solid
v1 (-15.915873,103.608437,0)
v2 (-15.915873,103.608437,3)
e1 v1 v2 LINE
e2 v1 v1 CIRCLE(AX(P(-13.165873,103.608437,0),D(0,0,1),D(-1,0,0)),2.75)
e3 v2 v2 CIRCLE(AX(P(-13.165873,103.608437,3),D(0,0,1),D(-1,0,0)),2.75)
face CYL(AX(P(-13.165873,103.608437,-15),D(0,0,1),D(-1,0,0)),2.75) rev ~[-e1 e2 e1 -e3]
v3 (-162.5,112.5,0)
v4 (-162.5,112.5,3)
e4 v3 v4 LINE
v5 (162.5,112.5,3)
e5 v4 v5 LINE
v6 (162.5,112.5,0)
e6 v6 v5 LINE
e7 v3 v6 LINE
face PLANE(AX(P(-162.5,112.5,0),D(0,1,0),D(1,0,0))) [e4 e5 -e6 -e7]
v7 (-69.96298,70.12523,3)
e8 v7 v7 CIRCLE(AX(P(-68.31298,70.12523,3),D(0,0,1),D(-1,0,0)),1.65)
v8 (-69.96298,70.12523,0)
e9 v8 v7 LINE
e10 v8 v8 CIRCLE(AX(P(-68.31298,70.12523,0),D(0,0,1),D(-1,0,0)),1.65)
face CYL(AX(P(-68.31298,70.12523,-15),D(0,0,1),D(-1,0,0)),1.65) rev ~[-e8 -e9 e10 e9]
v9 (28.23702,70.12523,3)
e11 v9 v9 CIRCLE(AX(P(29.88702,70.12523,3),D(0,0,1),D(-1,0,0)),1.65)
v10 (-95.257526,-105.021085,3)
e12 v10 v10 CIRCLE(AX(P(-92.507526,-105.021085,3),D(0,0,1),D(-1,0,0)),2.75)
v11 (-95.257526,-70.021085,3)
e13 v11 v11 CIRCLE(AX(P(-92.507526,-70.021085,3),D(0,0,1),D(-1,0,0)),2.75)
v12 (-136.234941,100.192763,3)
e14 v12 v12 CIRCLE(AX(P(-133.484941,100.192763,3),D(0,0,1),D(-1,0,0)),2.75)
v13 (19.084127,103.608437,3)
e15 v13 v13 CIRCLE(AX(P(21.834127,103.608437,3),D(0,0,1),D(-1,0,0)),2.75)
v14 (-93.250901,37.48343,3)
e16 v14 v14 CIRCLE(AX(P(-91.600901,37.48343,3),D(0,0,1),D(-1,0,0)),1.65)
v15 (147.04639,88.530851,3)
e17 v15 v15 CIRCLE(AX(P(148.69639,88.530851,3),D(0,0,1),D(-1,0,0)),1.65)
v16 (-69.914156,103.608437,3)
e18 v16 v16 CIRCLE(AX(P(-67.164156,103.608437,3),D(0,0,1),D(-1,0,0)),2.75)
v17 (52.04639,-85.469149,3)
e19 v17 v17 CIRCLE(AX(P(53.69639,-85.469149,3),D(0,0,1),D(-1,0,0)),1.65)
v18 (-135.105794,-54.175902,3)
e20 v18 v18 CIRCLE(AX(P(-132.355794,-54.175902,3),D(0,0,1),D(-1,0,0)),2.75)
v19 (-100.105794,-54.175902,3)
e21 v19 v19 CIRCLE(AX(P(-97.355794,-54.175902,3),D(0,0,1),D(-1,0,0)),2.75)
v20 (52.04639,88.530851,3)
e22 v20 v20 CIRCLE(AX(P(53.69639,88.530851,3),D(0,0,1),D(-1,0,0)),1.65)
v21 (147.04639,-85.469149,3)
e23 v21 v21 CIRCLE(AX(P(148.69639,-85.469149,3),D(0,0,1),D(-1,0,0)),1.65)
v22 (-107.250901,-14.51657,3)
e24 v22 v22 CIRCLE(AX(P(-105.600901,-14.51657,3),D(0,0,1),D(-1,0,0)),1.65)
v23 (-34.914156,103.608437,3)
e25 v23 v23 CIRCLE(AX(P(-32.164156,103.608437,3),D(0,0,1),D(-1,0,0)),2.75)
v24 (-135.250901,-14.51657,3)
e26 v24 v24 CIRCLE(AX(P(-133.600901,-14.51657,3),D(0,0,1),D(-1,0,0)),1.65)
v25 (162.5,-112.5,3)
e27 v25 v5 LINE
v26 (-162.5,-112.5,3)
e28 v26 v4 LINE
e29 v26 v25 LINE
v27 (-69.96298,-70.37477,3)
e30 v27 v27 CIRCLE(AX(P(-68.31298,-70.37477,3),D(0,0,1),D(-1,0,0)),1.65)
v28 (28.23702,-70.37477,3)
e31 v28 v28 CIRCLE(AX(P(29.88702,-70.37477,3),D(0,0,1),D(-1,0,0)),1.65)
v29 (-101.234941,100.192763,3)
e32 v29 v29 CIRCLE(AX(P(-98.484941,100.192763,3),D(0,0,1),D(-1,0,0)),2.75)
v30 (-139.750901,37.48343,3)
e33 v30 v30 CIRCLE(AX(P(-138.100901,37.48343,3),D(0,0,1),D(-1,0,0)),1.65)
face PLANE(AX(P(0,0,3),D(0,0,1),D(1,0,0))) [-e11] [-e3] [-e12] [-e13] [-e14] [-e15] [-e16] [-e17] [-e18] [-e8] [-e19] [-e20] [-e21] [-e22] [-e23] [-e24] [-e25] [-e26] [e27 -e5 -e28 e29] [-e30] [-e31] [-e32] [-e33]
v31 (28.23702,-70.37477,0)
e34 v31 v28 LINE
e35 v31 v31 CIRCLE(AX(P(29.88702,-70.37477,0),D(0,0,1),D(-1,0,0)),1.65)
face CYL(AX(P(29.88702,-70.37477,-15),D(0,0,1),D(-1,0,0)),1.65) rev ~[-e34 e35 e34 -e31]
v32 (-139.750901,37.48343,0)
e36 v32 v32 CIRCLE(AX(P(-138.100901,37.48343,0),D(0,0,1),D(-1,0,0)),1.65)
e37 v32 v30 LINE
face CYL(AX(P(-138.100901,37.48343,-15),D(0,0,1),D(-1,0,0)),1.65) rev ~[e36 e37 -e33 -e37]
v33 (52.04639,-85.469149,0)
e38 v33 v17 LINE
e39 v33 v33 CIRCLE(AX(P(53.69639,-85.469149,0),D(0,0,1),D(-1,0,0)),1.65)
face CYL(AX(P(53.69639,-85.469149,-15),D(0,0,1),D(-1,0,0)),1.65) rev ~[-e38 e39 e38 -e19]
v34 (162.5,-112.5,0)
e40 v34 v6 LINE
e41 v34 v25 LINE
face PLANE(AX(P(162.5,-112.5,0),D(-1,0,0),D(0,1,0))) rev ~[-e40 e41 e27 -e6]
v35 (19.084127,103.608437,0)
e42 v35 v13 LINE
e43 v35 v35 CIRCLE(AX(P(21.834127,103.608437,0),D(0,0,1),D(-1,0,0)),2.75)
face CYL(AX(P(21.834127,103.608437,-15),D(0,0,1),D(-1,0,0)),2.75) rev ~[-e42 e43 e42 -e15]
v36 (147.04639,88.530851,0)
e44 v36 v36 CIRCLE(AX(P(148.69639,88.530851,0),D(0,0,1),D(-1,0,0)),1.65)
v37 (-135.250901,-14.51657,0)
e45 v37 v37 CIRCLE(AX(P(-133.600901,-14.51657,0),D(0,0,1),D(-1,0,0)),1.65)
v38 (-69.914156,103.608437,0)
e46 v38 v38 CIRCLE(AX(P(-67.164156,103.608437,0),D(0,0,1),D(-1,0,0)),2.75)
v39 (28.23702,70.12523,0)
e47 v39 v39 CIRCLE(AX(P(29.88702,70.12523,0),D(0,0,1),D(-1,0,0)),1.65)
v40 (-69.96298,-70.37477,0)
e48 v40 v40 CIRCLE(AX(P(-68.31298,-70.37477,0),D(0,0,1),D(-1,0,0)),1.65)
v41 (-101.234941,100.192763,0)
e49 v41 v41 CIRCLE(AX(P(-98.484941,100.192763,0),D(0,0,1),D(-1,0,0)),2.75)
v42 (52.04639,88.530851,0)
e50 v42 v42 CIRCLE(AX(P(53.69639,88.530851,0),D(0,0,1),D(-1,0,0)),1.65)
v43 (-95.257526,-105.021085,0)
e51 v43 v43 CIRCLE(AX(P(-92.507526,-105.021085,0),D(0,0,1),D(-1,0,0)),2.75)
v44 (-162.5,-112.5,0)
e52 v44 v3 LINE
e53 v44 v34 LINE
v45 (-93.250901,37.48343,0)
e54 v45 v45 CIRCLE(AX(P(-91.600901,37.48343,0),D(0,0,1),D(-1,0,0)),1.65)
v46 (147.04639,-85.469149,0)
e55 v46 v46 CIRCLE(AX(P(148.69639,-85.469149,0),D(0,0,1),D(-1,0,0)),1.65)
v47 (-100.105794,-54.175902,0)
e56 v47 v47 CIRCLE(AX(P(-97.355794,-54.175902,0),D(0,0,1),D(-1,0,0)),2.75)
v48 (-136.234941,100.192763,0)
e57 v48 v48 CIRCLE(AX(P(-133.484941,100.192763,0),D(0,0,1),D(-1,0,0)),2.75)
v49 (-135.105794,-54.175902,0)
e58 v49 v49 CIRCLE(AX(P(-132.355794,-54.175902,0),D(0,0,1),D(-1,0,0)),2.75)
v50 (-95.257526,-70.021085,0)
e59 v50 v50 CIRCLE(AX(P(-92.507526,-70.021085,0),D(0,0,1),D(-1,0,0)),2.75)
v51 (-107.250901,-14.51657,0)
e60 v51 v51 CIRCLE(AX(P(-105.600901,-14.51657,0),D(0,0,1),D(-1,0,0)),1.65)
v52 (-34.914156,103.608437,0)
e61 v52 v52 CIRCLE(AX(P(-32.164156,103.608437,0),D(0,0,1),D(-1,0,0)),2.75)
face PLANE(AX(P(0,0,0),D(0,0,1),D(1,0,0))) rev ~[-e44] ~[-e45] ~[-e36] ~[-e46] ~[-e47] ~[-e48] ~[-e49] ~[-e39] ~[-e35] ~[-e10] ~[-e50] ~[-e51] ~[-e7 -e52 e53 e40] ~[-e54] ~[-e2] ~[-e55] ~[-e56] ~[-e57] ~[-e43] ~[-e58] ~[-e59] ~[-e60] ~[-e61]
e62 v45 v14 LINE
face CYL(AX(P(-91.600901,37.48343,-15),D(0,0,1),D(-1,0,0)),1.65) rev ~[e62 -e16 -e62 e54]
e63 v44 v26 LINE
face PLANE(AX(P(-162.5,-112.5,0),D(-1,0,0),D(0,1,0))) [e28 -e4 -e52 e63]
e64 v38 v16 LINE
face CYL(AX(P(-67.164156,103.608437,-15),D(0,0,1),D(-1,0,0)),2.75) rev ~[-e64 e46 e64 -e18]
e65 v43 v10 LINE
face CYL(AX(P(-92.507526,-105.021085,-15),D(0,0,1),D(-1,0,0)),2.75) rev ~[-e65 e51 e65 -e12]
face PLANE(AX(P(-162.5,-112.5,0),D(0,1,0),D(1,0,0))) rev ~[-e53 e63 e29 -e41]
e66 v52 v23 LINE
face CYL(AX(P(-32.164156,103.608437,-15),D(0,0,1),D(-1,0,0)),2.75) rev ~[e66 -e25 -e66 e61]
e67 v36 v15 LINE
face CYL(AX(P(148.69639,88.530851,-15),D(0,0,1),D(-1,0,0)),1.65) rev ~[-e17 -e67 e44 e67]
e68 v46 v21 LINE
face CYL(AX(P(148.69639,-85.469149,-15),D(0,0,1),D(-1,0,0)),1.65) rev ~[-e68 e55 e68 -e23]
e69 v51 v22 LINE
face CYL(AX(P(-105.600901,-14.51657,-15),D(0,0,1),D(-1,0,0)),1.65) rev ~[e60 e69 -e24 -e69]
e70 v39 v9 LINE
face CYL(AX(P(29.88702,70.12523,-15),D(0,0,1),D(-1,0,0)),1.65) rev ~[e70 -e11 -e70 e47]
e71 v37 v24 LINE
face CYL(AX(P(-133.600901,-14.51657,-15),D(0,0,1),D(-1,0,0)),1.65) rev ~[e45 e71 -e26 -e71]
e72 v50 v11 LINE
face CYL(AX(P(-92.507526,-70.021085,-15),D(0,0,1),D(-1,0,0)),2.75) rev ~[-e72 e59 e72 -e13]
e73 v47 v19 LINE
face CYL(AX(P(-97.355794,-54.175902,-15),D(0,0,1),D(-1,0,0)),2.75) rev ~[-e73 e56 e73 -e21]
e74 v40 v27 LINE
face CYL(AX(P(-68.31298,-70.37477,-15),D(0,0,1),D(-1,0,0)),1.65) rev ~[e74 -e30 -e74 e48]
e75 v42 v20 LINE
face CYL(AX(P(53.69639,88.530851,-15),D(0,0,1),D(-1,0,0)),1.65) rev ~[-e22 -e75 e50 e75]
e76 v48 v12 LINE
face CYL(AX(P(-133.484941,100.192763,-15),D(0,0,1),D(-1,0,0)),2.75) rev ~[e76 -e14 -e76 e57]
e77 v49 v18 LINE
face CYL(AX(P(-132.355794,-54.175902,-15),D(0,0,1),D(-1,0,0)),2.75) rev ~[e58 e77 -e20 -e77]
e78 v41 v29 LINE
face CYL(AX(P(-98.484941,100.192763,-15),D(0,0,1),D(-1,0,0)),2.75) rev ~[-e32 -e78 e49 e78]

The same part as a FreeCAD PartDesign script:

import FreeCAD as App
import Part
import Sketcher

V = App.Vector
Q = App.Units.Quantity


def add_polygon(sketch, points):
    """Adds a closed chain of lines whose ends are joined by coincident constraints."""
    first, n = sketch.GeometryCount, len(points)
    for a, b in zip(points, points[1:] + points[:1]):
        sketch.addGeometry(Part.LineSegment(App.Vector(*a, 0), App.Vector(*b, 0)), False)
    for i in range(n):
        sketch.addConstraint(Sketcher.Constraint("Coincident", first + i, 2, first + (i + 1) % n, 1))

doc = App.newDocument("Part")
body = doc.addObject("PartDesign::Body", "Body")

# Sketch on XY plane
sketch1 = body.newObject("Sketcher::SketchObject", "Sketch")
sketch1.AttachmentSupport = (doc.getObject("XY_Plane"), [""])
sketch1.MapMode = "FlatFace"
add_polygon(sketch1, [(-162.5, 112.5), (-162.5, -112.5), (162.5, -112.5), (162.5, 112.5)])  # lines 0-3
sketch1.addConstraint(Sketcher.Constraint("Vertical", 0))
sketch1.addConstraint(Sketcher.Constraint("Horizontal", 1))
sketch1.addConstraint(Sketcher.Constraint("Vertical", 2))
sketch1.addConstraint(Sketcher.Constraint("Horizontal", 3))
sketch1.addConstraint(Sketcher.Constraint("Symmetric", 0, 2, 2, 2, -1, 1))
sketch1.addConstraint(Sketcher.Constraint("DistanceX", 1, 1, 1, 2, Q("325 mm")))
sketch1.addConstraint(Sketcher.Constraint("DistanceY", 0, 2, 0, 1, Q("225 mm")))
pad1 = body.newObject("PartDesign::Pad", "Pad")
pad1.Profile = sketch1
pad1.Length = 3

# Sketch on XY plane
sketch2 = body.newObject("Sketcher::SketchObject", "Sketch001")
sketch2.AttachmentSupport = (doc.getObject("XY_Plane"), [""])
sketch2.MapMode = "FlatFace"
sketch2.addGeometry(Part.Circle(V(148.69639, 88.530851, 0), V(0, 0, 1), 1.65), False)
sketch2.addGeometry(Part.Circle(V(53.69639, 88.530851, 0), V(0, 0, 1), 1.65), False)
sketch2.addGeometry(Part.Circle(V(148.69639, -85.469149, 0), V(0, 0, 1), 1.65), False)
sketch2.addGeometry(Part.Circle(V(53.69639, -85.469149, 0), V(0, 0, 1), 1.65), False)
sketch2.addGeometry(Part.Circle(V(-68.31298, 70.12523, 0), V(0, 0, 1), 1.65), False)
sketch2.addGeometry(Part.Circle(V(29.88702, 70.12523, 0), V(0, 0, 1), 1.65), False)
sketch2.addGeometry(Part.Circle(V(29.88702, -70.37477, 0), V(0, 0, 1), 1.65), False)
sketch2.addGeometry(Part.Circle(V(-68.31298, -70.37477, 0), V(0, 0, 1), 1.65), False)
sketch2.addGeometry(Part.Circle(V(-91.600901, 37.48343, 0), V(0, 0, 1), 1.65), False)
sketch2.addGeometry(Part.Circle(V(-105.600901, -14.51657, 0), V(0, 0, 1), 1.65), False)
sketch2.addGeometry(Part.Circle(V(-133.600901, -14.51657, 0), V(0, 0, 1), 1.65), False)
sketch2.addGeometry(Part.Circle(V(-138.100901, 37.48343, 0), V(0, 0, 1), 1.65), False)
sketch2.addConstraint(Sketcher.Constraint("Equal", 0, 1))
sketch2.addConstraint(Sketcher.Constraint("Equal", 1, 2))
sketch2.addConstraint(Sketcher.Constraint("Equal", 2, 3))
sketch2.addConstraint(Sketcher.Constraint("Equal", 3, 4))
sketch2.addConstraint(Sketcher.Constraint("Equal", 4, 5))
sketch2.addConstraint(Sketcher.Constraint("Equal", 5, 6))
sketch2.addConstraint(Sketcher.Constraint("Equal", 6, 7))
sketch2.addConstraint(Sketcher.Constraint("Equal", 7, 8))
sketch2.addConstraint(Sketcher.Constraint("Equal", 8, 9))
sketch2.addConstraint(Sketcher.Constraint("Equal", 9, 10))
sketch2.addConstraint(Sketcher.Constraint("Equal", 10, 11))
sketch2.addConstraint(Sketcher.Constraint("Horizontal", 0, 3, 1, 3))
sketch2.addConstraint(Sketcher.Constraint("Horizontal", 2, 3, 3, 3))
sketch2.addConstraint(Sketcher.Constraint("Horizontal", 4, 3, 5, 3))
sketch2.addConstraint(Sketcher.Constraint("Horizontal", 6, 3, 7, 3))
sketch2.addConstraint(Sketcher.Constraint("Horizontal", 9, 3, 10, 3))
sketch2.addConstraint(Sketcher.Constraint("Horizontal", 8, 3, 11, 3))
sketch2.addConstraint(Sketcher.Constraint("Vertical", 0, 3, 2, 3))
sketch2.addConstraint(Sketcher.Constraint("Vertical", 1, 3, 3, 3))
sketch2.addConstraint(Sketcher.Constraint("Vertical", 5, 3, 6, 3))
sketch2.addConstraint(Sketcher.Constraint("Vertical", 4, 3, 7, 3))
sketch2.addConstraint(Sketcher.Constraint("Diameter", 0, Q("3.3 mm")))
sketch2.addConstraint(Sketcher.Constraint("DistanceX", 1, 3, 0, 3, Q("95 mm")))
sketch2.addConstraint(Sketcher.Constraint("DistanceY", 2, 3, 0, 3, Q("174 mm")))
sketch2.addConstraint(Sketcher.Constraint("DistanceX", 9, 3, 8, 3, Q("14 mm")))
sketch2.addConstraint(Sketcher.Constraint("DistanceY", 9, 3, 8, 3, Q("52 mm")))
sketch2.addConstraint(Sketcher.Constraint("DistanceX", 10, 3, 9, 3, Q("28 mm")))
sketch2.addConstraint(Sketcher.Constraint("DistanceX", 4, 3, 5, 3, Q("98.2 mm")))
sketch2.addConstraint(Sketcher.Constraint("DistanceY", 6, 3, 5, 3, Q("140.5 mm")))
sketch2.addConstraint(Sketcher.Constraint("DistanceX", 11, 3, 8, 3, Q("46.5 mm")))
sketch2.addConstraint(Sketcher.Constraint("DistanceX", 8, 3, -1, 1, Q("91.600901 mm")))
sketch2.addConstraint(Sketcher.Constraint("DistanceY", 8, 3, 4, 3, Q("32.641799 mm")))
sketch2.addConstraint(Sketcher.Constraint("DistanceX", -1, 1, 0, 3, Q("148.69639 mm")))
sketch2.addConstraint(Sketcher.Constraint("DistanceY", -1, 1, 0, 3, Q("88.530851 mm")))
sketch2.addConstraint(Sketcher.Constraint("DistanceX", 4, 3, -1, 1, Q("68.31298 mm")))
sketch2.addConstraint(Sketcher.Constraint("DistanceY", -1, 1, 4, 3, Q("70.12523 mm")))
doc.recompute()
hole = body.newObject("PartDesign::Hole", "Hole")
hole.Profile = sketch2
hole.ThreadType = "None"
hole.Diameter = 3.3
hole.DepthType = "Dimension"
hole.Depth = 15
hole.DrillPoint = "Angled"
hole.DrillPointAngle = 118
hole.Reversed = True

# Sketch on XY plane
sketch3 = body.newObject("Sketcher::SketchObject", "Sketch002")
sketch3.AttachmentSupport = (doc.getObject("XY_Plane"), [""])
sketch3.MapMode = "FlatFace"
sketch3.addGeometry(Part.Circle(V(-133.484941, 100.192763, 0), V(0, 0, 1), 2.75), False)
sketch3.addGeometry(Part.Circle(V(-98.484941, 100.192763, 0), V(0, 0, 1), 2.75), False)
sketch3.addGeometry(Part.Circle(V(-67.164156, 103.608437, 0), V(0, 0, 1), 2.75), False)
sketch3.addGeometry(Part.Circle(V(-32.164156, 103.608437, 0), V(0, 0, 1), 2.75), False)
sketch3.addGeometry(Part.Circle(V(-13.165873, 103.608437, 0), V(0, 0, 1), 2.75), False)
sketch3.addGeometry(Part.Circle(V(21.834127, 103.608437, 0), V(0, 0, 1), 2.75), False)
sketch3.addGeometry(Part.Circle(V(-92.507526, -70.021085, 0), V(0, 0, 1), 2.75), False)
sketch3.addGeometry(Part.Circle(V(-92.507526, -105.021085, 0), V(0, 0, 1), 2.75), False)
sketch3.addGeometry(Part.Circle(V(-97.355794, -54.175902, 0), V(0, 0, 1), 2.75), False)
sketch3.addGeometry(Part.Circle(V(-132.355794, -54.175902, 0), V(0, 0, 1), 2.75), False)
sketch3.addConstraint(Sketcher.Constraint("Equal", 0, 1))
sketch3.addConstraint(Sketcher.Constraint("Equal", 1, 2))
sketch3.addConstraint(Sketcher.Constraint("Equal", 2, 3))
sketch3.addConstraint(Sketcher.Constraint("Equal", 3, 4))
sketch3.addConstraint(Sketcher.Constraint("Equal", 4, 5))
sketch3.addConstraint(Sketcher.Constraint("Equal", 5, 6))
sketch3.addConstraint(Sketcher.Constraint("Equal", 6, 7))
sketch3.addConstraint(Sketcher.Constraint("Equal", 7, 8))
sketch3.addConstraint(Sketcher.Constraint("Equal", 8, 9))
sketch3.addConstraint(Sketcher.Constraint("Horizontal", 0, 3, 1, 3))
sketch3.addConstraint(Sketcher.Constraint("Horizontal", 2, 3, 3, 3))
sketch3.addConstraint(Sketcher.Constraint("Horizontal", 3, 3, 4, 3))
sketch3.addConstraint(Sketcher.Constraint("Horizontal", 4, 3, 5, 3))
sketch3.addConstraint(Sketcher.Constraint("Horizontal", 8, 3, 9, 3))
sketch3.addConstraint(Sketcher.Constraint("Vertical", 6, 3, 7, 3))
sketch3.addConstraint(Sketcher.Constraint("Diameter", 0, Q("5.5 mm")))
sketch3.addConstraint(Sketcher.Constraint("DistanceX", 0, 3, 1, 3, Q("35 mm")))
sketch3.addConstraint(Sketcher.Constraint("DistanceX", 2, 3, 3, 3, Q("35 mm")))
sketch3.addConstraint(Sketcher.Constraint("DistanceX", 4, 3, 5, 3, Q("35 mm")))
sketch3.addConstraint(Sketcher.Constraint("DistanceY", 7, 3, 6, 3, Q("35 mm")))
sketch3.addConstraint(Sketcher.Constraint("DistanceX", 9, 3, 8, 3, Q("35 mm")))
sketch3.addConstraint(Sketcher.Constraint("DistanceX", 0, 3, -1, 1, Q("133.484941 mm")))
sketch3.addConstraint(Sketcher.Constraint("DistanceY", 6, 3, 1, 3, Q("170.213848 mm")))
sketch3.addConstraint(Sketcher.Constraint("DistanceX", 6, 3, 2, 3, Q("25.34337 mm")))
sketch3.addConstraint(Sketcher.Constraint("DistanceX", 8, 3, 6, 3, Q("4.848268 mm")))
sketch3.addConstraint(Sketcher.Constraint("DistanceY", 8, 3, 2, 3, Q("157.784339 mm")))
sketch3.addConstraint(Sketcher.Constraint("DistanceY", -1, 1, 0, 3, Q("100.192763 mm")))
sketch3.addConstraint(Sketcher.Constraint("DistanceX", 2, 3, -1, 1, Q("67.164156 mm")))
sketch3.addConstraint(Sketcher.Constraint("DistanceY", -1, 1, 2, 3, Q("103.608437 mm")))
sketch3.addConstraint(Sketcher.Constraint("DistanceX", 4, 3, -1, 1, Q("13.165873 mm")))
doc.recompute()
hole2 = body.newObject("PartDesign::Hole", "Hole001")
hole2.Profile = sketch3
hole2.ThreadType = "None"
hole2.Diameter = 5.5
hole2.DepthType = "Dimension"
hole2.Depth = 15
hole2.DrillPoint = "Angled"
hole2.DrillPointAngle = 118
hole2.Reversed = True

doc.recompute()
